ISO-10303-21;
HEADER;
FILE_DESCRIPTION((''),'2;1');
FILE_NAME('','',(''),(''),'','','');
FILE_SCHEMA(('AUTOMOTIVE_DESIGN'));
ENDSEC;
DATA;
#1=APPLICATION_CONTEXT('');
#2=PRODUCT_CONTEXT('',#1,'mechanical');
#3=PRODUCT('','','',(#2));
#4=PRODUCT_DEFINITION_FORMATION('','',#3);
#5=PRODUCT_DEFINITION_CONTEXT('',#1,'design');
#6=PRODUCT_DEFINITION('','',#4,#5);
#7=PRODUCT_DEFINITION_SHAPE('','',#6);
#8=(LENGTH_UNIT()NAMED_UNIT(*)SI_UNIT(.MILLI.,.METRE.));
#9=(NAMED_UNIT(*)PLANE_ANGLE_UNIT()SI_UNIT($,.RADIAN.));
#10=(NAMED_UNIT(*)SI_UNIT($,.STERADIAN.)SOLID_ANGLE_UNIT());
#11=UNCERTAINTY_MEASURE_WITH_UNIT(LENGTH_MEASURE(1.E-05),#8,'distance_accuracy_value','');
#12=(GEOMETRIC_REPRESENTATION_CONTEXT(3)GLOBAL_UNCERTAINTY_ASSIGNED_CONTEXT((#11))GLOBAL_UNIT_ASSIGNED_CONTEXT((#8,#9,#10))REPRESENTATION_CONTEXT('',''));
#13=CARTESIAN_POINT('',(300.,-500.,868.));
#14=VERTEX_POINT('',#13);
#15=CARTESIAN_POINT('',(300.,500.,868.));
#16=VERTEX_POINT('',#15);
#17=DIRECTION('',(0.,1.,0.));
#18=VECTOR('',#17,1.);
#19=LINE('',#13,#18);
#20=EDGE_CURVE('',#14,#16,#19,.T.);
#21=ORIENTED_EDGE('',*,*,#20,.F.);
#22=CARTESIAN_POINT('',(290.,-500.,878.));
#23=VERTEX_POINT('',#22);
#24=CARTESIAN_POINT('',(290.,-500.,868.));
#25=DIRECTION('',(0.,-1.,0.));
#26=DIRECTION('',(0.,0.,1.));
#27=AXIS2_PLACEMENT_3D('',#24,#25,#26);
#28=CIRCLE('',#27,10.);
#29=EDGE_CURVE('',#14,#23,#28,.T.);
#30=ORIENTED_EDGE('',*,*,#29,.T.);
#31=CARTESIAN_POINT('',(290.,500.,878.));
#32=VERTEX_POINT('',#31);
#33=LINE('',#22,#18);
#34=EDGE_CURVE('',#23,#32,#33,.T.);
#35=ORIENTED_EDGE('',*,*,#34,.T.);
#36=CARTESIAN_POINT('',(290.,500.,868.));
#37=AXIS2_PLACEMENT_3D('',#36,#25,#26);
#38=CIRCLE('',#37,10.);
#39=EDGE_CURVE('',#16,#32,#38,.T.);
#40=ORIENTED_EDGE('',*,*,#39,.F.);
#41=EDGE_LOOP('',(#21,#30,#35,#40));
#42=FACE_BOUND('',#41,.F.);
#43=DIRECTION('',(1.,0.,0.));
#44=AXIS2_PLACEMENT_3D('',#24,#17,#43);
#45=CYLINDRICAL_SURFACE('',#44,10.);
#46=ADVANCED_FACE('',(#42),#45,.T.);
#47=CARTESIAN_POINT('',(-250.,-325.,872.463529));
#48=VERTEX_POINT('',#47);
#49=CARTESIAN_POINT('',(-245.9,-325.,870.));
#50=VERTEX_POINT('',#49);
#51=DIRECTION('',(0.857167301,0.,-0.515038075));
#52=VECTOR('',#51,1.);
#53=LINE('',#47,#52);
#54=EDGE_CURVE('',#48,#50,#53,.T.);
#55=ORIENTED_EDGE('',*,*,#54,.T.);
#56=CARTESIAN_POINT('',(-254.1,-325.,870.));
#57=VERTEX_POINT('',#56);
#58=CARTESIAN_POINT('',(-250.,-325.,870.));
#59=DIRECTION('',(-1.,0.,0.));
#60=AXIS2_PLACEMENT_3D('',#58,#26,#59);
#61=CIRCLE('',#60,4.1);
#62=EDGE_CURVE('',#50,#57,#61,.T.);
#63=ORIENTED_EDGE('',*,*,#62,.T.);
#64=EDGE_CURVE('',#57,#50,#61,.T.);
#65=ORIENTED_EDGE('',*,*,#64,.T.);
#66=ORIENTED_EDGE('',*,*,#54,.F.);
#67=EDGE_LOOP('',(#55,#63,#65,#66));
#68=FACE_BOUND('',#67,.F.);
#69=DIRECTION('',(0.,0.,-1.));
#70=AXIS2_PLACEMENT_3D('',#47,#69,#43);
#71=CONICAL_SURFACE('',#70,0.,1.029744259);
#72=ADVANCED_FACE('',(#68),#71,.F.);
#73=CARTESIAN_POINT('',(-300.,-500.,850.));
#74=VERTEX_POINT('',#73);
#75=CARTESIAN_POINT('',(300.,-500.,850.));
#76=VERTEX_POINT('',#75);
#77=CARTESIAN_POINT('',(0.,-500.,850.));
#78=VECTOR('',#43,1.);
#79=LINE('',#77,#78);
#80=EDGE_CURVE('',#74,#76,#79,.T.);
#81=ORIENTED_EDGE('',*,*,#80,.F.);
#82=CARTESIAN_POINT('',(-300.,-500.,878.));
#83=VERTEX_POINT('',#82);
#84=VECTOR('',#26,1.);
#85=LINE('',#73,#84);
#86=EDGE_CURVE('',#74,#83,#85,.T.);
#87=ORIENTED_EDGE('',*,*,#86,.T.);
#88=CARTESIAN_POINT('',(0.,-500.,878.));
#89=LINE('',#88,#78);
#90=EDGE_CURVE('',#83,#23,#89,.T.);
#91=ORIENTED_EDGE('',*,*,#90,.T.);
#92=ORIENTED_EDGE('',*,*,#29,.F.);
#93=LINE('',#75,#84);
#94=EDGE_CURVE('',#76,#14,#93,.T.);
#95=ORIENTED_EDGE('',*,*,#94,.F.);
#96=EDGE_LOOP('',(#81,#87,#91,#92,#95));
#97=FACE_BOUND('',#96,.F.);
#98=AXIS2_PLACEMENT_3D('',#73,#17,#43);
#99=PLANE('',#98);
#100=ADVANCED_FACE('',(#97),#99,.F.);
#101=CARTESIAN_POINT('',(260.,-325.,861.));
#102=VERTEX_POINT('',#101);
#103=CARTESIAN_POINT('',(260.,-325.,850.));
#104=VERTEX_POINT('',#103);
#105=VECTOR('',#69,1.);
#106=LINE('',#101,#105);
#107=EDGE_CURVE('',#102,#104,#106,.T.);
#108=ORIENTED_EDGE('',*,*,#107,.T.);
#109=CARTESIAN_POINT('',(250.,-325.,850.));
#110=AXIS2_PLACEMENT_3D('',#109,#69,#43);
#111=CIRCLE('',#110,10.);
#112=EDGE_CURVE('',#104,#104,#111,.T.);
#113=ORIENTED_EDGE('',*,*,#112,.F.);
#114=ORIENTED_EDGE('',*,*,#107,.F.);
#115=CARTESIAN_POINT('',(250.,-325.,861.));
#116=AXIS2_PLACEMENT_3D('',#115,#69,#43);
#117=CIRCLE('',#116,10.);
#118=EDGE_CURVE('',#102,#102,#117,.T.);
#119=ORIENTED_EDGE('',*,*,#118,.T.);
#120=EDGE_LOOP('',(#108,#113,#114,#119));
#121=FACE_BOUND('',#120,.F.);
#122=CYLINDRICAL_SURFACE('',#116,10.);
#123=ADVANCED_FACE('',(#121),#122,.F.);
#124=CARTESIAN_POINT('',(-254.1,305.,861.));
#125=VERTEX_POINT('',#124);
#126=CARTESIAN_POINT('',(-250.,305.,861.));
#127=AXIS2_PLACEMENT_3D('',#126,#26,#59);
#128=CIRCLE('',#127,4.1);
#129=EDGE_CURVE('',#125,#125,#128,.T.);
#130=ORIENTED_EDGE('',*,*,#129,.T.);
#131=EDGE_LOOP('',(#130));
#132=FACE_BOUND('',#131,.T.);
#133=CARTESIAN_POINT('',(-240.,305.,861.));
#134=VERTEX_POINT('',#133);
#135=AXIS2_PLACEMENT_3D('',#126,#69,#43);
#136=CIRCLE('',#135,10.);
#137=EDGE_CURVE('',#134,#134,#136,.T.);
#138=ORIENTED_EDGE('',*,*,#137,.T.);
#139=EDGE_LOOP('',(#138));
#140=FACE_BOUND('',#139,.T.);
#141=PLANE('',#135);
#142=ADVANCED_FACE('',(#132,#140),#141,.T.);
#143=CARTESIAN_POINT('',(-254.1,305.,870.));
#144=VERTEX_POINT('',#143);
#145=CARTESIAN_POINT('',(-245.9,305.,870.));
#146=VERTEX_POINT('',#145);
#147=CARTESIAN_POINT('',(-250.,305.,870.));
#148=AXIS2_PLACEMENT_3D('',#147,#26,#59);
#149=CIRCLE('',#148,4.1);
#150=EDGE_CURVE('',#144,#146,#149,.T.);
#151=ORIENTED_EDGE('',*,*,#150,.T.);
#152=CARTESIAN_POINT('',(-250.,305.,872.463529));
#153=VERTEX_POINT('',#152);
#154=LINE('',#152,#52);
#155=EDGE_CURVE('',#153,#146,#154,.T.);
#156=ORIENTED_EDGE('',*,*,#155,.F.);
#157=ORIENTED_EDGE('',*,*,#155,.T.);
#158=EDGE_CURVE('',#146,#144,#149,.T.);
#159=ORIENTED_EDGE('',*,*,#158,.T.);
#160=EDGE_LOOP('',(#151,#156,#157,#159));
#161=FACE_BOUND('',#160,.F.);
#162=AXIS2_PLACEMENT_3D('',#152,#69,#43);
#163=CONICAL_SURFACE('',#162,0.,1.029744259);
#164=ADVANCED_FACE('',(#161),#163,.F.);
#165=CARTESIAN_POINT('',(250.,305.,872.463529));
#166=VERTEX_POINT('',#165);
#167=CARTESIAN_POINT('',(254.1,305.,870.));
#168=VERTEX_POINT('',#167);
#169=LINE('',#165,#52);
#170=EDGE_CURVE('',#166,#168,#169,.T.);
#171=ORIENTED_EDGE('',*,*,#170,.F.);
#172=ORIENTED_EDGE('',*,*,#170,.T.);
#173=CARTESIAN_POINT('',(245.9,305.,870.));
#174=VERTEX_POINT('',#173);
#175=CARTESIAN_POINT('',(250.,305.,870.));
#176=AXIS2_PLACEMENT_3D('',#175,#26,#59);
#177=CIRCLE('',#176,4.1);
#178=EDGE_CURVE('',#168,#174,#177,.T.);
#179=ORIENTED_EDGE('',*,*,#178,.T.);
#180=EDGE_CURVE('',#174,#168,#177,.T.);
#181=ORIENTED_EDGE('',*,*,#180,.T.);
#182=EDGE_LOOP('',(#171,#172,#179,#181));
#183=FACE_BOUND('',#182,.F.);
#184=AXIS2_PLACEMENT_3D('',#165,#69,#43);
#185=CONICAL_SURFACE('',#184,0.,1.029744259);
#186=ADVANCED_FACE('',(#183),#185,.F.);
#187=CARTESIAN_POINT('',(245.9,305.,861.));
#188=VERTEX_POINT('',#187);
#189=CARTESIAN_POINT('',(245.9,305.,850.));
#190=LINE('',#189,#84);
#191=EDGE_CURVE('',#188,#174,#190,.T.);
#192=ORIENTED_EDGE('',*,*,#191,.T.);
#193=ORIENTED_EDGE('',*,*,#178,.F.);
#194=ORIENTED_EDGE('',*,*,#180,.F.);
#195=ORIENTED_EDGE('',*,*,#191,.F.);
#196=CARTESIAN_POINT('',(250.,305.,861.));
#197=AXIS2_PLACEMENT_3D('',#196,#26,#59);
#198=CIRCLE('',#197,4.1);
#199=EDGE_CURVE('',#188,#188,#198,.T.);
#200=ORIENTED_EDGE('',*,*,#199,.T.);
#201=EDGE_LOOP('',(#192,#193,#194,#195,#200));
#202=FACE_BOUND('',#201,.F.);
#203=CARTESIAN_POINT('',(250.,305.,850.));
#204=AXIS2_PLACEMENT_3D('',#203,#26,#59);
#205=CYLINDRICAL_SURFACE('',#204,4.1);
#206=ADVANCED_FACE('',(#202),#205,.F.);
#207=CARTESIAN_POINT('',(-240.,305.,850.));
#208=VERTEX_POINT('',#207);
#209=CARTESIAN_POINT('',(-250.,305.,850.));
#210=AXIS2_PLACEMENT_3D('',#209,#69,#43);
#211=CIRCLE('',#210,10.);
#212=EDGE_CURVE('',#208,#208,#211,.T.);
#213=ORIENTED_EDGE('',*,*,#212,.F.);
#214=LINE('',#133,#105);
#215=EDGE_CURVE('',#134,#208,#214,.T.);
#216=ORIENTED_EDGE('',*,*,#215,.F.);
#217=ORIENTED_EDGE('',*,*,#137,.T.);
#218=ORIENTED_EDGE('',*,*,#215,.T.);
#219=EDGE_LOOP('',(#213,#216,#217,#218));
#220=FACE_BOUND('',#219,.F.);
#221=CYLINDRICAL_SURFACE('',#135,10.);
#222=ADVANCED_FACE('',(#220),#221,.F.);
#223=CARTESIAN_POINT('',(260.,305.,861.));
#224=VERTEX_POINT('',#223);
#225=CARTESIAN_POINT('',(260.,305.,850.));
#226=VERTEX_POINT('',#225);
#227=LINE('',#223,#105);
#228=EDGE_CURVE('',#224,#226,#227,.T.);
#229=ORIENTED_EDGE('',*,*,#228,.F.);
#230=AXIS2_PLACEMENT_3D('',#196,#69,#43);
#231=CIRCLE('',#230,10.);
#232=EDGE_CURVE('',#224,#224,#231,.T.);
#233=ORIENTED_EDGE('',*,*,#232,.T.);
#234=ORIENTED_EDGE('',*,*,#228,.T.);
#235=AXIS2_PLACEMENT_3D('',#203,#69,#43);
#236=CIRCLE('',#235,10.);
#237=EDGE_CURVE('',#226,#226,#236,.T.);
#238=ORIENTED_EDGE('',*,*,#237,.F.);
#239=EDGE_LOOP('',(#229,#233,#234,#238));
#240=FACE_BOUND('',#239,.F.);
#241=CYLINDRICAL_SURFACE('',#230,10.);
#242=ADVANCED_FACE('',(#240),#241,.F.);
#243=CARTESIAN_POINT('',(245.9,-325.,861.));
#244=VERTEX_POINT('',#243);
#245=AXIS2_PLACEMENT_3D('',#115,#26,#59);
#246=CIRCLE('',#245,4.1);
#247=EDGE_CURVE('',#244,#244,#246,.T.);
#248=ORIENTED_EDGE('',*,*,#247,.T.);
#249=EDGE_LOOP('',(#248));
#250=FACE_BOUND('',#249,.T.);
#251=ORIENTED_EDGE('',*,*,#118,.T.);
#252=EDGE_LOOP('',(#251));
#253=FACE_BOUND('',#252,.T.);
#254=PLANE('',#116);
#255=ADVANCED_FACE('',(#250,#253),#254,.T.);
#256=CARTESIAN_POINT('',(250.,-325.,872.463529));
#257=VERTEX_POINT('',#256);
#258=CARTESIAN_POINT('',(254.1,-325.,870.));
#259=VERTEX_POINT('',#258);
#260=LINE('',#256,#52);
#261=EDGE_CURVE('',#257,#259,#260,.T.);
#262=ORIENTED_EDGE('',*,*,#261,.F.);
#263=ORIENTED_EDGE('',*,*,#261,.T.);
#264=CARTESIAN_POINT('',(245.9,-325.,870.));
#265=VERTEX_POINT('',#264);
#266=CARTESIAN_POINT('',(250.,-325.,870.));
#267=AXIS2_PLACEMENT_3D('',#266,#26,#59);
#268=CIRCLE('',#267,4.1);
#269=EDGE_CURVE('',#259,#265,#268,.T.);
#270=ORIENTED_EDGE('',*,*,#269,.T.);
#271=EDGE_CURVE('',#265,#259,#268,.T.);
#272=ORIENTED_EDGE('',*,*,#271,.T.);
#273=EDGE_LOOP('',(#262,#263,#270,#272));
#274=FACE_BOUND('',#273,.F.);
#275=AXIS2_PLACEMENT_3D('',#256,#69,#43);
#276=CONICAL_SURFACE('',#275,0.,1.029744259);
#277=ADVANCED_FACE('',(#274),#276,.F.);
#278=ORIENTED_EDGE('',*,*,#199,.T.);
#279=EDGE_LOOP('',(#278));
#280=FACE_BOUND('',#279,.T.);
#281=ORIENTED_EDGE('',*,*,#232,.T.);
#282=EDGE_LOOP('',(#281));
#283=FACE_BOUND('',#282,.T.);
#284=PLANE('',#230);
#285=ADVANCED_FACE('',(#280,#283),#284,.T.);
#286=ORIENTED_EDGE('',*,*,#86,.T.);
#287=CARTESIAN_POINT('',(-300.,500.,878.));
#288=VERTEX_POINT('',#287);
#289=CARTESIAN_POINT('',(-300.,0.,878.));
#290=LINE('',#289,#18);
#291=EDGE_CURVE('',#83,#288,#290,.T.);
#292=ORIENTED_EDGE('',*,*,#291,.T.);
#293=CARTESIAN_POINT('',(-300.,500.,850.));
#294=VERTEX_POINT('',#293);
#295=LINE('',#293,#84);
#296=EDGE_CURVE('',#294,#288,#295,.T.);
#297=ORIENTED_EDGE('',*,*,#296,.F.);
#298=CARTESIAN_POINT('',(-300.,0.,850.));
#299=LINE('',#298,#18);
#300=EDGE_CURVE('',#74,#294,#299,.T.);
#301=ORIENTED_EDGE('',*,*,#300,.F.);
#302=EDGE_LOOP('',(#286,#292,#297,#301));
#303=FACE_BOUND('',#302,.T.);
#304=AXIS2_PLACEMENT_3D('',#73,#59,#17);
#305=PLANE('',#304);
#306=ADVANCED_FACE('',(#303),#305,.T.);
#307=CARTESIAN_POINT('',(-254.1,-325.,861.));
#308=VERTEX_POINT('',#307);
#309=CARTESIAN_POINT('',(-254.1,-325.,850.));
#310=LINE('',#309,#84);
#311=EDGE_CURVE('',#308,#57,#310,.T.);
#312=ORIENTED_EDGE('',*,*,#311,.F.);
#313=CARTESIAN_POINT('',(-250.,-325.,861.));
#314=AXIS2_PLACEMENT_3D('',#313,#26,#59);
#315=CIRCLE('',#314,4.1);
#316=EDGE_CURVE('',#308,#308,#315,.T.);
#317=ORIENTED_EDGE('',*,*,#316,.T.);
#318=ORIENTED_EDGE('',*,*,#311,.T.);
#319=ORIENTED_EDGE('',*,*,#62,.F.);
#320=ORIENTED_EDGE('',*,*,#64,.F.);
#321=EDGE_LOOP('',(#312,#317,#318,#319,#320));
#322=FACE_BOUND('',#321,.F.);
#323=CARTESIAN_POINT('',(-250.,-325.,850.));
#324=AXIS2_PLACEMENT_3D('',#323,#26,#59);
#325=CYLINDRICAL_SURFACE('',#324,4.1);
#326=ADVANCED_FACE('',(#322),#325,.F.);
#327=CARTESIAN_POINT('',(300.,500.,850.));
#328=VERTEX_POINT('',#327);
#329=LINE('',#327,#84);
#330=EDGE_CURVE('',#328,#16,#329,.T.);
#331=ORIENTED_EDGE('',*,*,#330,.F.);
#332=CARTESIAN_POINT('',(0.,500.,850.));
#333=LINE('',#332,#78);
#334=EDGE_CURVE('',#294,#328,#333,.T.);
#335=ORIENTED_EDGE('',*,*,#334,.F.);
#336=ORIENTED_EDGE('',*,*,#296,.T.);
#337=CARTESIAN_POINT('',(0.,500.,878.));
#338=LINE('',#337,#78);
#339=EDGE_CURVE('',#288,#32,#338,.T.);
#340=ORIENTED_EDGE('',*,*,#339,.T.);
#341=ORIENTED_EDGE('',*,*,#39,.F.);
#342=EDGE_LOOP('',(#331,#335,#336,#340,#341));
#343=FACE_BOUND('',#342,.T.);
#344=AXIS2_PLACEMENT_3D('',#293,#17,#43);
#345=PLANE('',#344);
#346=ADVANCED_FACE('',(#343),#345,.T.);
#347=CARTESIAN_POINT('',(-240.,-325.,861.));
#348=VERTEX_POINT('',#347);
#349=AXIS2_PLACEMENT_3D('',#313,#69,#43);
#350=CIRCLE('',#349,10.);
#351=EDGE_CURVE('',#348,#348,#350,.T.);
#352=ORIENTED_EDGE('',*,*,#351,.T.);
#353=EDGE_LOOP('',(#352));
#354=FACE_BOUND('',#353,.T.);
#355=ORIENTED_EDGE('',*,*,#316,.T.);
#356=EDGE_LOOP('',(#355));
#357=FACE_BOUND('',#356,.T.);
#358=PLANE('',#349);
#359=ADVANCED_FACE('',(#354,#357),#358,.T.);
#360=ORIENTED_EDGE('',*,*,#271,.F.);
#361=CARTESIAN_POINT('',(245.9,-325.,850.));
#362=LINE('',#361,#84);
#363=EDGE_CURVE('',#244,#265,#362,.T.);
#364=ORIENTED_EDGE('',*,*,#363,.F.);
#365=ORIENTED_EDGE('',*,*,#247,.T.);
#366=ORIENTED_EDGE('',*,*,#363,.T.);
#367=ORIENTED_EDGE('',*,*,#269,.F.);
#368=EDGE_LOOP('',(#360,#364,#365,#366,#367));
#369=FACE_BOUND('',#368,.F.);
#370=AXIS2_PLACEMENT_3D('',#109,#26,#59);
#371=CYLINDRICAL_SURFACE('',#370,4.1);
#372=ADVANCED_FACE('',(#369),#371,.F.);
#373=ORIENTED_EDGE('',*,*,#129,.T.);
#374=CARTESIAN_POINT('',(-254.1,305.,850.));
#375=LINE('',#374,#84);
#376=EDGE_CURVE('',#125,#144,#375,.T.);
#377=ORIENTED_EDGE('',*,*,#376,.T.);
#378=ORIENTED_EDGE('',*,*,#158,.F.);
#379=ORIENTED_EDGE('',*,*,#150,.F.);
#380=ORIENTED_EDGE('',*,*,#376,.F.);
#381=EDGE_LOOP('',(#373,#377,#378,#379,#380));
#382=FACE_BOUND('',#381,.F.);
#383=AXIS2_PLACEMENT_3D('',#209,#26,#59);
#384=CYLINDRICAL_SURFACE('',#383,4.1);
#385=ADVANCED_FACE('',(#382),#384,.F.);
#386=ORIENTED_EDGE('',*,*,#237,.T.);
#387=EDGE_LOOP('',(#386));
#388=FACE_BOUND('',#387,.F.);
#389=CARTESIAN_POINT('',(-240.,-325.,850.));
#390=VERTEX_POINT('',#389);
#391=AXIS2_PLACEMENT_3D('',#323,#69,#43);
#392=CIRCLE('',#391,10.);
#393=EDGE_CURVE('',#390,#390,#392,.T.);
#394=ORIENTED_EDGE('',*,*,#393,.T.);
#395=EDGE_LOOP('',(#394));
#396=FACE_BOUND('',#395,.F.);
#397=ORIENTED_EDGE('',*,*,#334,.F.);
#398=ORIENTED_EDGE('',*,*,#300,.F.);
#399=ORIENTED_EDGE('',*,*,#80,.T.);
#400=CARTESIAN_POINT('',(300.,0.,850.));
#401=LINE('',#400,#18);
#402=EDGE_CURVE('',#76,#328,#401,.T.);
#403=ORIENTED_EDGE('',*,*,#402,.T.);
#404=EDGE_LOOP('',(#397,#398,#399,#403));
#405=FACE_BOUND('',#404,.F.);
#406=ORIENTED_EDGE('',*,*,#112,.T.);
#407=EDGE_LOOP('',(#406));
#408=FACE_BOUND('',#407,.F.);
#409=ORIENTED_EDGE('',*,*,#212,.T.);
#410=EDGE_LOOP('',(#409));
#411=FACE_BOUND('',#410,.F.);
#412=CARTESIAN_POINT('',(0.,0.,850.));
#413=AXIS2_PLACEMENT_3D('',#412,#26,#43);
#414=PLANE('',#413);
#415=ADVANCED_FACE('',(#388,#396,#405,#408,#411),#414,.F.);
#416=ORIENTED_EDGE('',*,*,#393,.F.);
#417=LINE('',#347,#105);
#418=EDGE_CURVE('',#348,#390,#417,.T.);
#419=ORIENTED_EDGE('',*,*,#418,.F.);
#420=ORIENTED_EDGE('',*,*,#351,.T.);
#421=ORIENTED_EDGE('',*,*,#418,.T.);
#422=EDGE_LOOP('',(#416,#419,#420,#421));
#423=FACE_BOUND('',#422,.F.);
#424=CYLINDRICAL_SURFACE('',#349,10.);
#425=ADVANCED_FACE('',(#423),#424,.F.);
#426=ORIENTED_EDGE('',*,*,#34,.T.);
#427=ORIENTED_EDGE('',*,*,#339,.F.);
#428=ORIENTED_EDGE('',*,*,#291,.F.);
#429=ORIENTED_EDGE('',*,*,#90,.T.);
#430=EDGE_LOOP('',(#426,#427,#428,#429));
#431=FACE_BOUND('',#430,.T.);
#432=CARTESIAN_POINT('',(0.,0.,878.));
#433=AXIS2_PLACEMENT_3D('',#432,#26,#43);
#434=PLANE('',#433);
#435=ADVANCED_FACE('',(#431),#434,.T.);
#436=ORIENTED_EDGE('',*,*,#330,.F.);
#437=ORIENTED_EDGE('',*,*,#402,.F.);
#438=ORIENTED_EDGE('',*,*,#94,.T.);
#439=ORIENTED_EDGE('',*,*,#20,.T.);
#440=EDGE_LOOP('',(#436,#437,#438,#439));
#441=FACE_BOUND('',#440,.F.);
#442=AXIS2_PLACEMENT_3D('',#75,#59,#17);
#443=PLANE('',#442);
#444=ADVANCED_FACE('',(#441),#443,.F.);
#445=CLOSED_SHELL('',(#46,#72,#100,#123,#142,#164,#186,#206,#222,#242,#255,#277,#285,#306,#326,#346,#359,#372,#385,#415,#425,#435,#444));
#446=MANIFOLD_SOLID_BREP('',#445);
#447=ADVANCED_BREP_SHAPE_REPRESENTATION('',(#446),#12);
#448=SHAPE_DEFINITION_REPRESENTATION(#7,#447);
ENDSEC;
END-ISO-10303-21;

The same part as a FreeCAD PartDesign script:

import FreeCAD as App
import Part
import Sketcher
from FreeCAD import Vector


def edges_at(feature, points):
    """Names of the edges that pass closest to the given points."""
    edges = feature.Shape.Edges
    near = lambda p: min(range(len(edges)), key=lambda i: edges[i].distToShape(Part.Vertex(*p))[0])
    return sorted({f"Edge{near(p) + 1}" for p in points})


def add_polygon(sketch, points):
    """Adds a closed chain of lines whose ends are joined by coincident constraints."""
    first, n = sketch.GeometryCount, len(points)
    for a, b in zip(points, points[1:] + points[:1]):
        sketch.addGeometry(Part.LineSegment(App.Vector(*a, 0), App.Vector(*b, 0)), False)
    for i in range(n):
        sketch.addConstraint(Sketcher.Constraint("Coincident", first + i, 2, first + (i + 1) % n, 1))

doc = App.newDocument("Part")
body = doc.addObject("PartDesign::Body", "Body")

sketch1 = body.newObject("Sketcher::SketchObject", "Sketch")
sketch1.AttachmentSupport = (doc.getObject("XY_Plane"), [""])
sketch1.MapMode = "FlatFace"
sketch1.AttachmentOffset = App.Placement(Vector(0, 0, 850), App.Rotation())
add_polygon(sketch1, [(-300, 500), (-300, -500), (300, -500), (300, 500)])
sketch1.addConstraint(Sketcher.Constraint("Vertical", 0))
sketch1.addConstraint(Sketcher.Constraint("Horizontal", 1))
sketch1.addConstraint(Sketcher.Constraint("Vertical", 2))
sketch1.addConstraint(Sketcher.Constraint("Horizontal", 3))
sketch1.addConstraint(Sketcher.Constraint("Symmetric", 0, 2, 2, 2, -1, 1))
sketch1.addConstraint(Sketcher.Constraint("DistanceX", 1, 1, 1, 2, 600.0))
sketch1.addConstraint(Sketcher.Constraint("DistanceY", 0, 2, 0, 1, 1000.0))
pad1 = body.newObject("PartDesign::Pad", "Pad")
pad1.Profile = sketch1
pad1.Length = 28
doc.recompute()

fillet = body.newObject("PartDesign::Fillet", "Fillet")
fillet.Base = (pad1, edges_at(pad1, [(300, 0, 878)]))
fillet.Radius = 10

sketch2 = body.newObject("Sketcher::SketchObject", "Sketch001")
sketch2.AttachmentSupport = (doc.getObject("XY_Plane"), [""])
sketch2.MapMode = "FlatFace"
sketch2.AttachmentOffset = App.Placement(Vector(0, 0, 850), App.Rotation())
sketch2.addGeometry(Part.Circle(Vector(250, -325, 0), Vector(0, 0, 1), 4.1), False)
sketch2.addGeometry(Part.Circle(Vector(250, 305, 0), Vector(0, 0, 1), 4.1), False)
sketch2.addGeometry(Part.Circle(Vector(-250, 305, 0), Vector(0, 0, 1), 4.1), False)
sketch2.addGeometry(Part.Circle(Vector(-250, -325, 0), Vector(0, 0, 1), 4.1), False)
sketch2.addConstraint(Sketcher.Constraint("Equal", 0, 1))
sketch2.addConstraint(Sketcher.Constraint("Equal", 1, 2))
sketch2.addConstraint(Sketcher.Constraint("Equal", 2, 3))
sketch2.addConstraint(Sketcher.Constraint("Symmetric", 1, 3, 2, 3, -2))
sketch2.addConstraint(Sketcher.Constraint("Symmetric", 0, 3, 3, 3, -2))
sketch2.addConstraint(Sketcher.Constraint("Vertical", 0, 3, 1, 3))
sketch2.addConstraint(Sketcher.Constraint("Diameter", 0, 8.2))
sketch2.addConstraint(Sketcher.Constraint("DistanceX", -1, 1, 0, 3, 250.0))
sketch2.addConstraint(Sketcher.Constraint("DistanceY", 0, 3, -1, 1, 325.0))
sketch2.addConstraint(Sketcher.Constraint("DistanceY", -1, 1, 1, 3, 305.0))
doc.recompute()
hole = body.newObject("PartDesign::Hole", "Hole")
hole.Profile = sketch2
hole.ThreadType = "None"
hole.Diameter = 8.2
hole.DepthType = "Dimension"
hole.Depth = 20
hole.DrillPoint = "Angled"
hole.DrillPointAngle = 118
hole.HoleCutType = "Counterbore"
hole.HoleCutDiameter = 20
hole.HoleCutDepth = 11
hole.Reversed = True

doc.recompute()
